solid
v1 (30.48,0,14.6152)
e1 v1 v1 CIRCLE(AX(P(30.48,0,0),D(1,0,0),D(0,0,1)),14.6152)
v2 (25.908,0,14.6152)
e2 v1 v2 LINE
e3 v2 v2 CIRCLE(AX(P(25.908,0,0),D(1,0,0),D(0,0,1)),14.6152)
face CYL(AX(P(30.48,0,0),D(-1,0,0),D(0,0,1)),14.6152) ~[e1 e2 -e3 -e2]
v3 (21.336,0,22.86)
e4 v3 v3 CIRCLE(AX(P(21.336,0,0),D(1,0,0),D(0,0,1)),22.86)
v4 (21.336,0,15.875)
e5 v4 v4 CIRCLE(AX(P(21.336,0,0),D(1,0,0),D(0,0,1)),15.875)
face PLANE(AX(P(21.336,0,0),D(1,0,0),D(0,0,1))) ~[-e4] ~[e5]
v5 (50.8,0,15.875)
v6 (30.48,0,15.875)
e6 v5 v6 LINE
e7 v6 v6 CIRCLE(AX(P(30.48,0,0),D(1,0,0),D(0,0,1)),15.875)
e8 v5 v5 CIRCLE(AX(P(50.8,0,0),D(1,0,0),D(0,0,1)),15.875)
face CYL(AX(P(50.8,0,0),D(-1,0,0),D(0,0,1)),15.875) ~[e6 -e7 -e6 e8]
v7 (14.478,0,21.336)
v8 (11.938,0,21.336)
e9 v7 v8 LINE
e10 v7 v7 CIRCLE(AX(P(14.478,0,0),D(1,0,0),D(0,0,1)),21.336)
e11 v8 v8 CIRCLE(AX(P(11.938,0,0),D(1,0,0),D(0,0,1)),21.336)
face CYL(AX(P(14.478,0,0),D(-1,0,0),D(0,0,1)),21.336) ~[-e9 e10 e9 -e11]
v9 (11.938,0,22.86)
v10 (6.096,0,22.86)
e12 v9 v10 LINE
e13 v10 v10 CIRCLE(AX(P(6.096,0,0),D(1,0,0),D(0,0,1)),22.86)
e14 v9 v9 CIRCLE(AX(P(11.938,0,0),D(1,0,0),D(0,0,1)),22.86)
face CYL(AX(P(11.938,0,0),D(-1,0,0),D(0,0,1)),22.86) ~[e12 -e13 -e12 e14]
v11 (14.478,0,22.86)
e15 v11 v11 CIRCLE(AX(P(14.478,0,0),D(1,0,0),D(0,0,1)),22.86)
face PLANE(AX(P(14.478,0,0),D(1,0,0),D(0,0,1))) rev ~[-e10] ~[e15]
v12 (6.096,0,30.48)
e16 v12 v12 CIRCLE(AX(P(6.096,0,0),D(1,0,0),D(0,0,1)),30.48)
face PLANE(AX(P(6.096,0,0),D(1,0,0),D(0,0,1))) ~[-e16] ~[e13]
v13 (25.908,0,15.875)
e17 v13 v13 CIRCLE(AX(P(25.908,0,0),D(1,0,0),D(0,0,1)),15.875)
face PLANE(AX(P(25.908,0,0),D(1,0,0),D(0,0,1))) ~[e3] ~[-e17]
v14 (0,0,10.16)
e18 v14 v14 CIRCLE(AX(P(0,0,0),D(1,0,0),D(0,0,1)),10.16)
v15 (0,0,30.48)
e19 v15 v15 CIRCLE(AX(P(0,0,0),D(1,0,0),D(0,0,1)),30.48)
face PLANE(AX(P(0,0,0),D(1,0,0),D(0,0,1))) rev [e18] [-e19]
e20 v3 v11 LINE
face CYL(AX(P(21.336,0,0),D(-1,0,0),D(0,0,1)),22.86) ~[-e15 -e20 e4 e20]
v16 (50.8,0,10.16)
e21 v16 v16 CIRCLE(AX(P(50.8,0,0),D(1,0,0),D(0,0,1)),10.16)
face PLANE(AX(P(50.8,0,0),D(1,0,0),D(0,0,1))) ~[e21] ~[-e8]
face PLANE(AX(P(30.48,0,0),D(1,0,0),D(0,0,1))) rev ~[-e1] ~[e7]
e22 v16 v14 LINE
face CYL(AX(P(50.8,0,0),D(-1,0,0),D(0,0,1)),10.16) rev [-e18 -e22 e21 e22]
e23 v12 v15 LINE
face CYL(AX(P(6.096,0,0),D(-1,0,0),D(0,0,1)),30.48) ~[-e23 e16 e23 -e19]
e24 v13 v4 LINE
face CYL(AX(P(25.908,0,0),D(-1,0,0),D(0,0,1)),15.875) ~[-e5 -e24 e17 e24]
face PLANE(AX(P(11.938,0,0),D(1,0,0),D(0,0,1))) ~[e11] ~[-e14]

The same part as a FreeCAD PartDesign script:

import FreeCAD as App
import Part
import Sketcher
Q = App.Units.Quantity

doc = App.newDocument("Part")
body = doc.addObject("PartDesign::Body", "Body")

# Sketch on XZ plane
sketch1 = body.newObject("Sketcher::SketchObject", "Sketch")
sketch1.AttachmentSupport = (doc.getObject("XZ_Plane"), [""])
sketch1.MapMode = "FlatFace"
sketch1.addGeometry([
    Part.LineSegment(App.Vector(50.8, 10.16, 0), App.Vector(0, 10.16, 0)),  # 0
    Part.LineSegment(App.Vector(0, 10.16, 0), App.Vector(0, 30.48, 0)),  # 1
    Part.LineSegment(App.Vector(0, 30.48, 0), App.Vector(6.096, 30.48, 0)),  # 2
    Part.LineSegment(App.Vector(6.096, 30.48, 0), App.Vector(6.096, 22.86, 0)),  # 3
    Part.LineSegment(App.Vector(6.096, 22.86, 0), App.Vector(11.938, 22.86, 0)),  # 4
    Part.LineSegment(App.Vector(11.938, 22.86, 0), App.Vector(11.938, 21.336, 0)),  # 5
    Part.LineSegment(App.Vector(11.938, 21.336, 0), App.Vector(14.478, 21.336, 0)),  # 6
    Part.LineSegment(App.Vector(14.478, 21.336, 0), App.Vector(14.478, 22.86, 0)),  # 7
    Part.LineSegment(App.Vector(14.478, 22.86, 0), App.Vector(21.336, 22.86, 0)),  # 8
    Part.LineSegment(App.Vector(21.336, 22.86, 0), App.Vector(21.336, 15.875, 0)),  # 9
    Part.LineSegment(App.Vector(21.336, 15.875, 0), App.Vector(25.908, 15.875, 0)),  # 10
    Part.LineSegment(App.Vector(25.908, 15.875, 0), App.Vector(25.908, 14.6152, 0)),  # 11
    Part.LineSegment(App.Vector(25.908, 14.6152, 0), App.Vector(30.48, 14.6152, 0)),  # 12
    Part.LineSegment(App.Vector(30.48, 14.6152, 0), App.Vector(30.48, 15.875, 0)),  # 13
    Part.LineSegment(App.Vector(30.48, 15.875, 0), App.Vector(50.8, 15.875, 0)),  # 14
    Part.LineSegment(App.Vector(50.8, 15.875, 0), App.Vector(50.8, 10.16, 0)),  # 15
], False)
sketch1.addConstraint([
    Sketcher.Constraint("Coincident", 0, 2, 1, 1),
    Sketcher.Constraint("Coincident", 1, 2, 2, 1),
    Sketcher.Constraint("Coincident", 2, 2, 3, 1),
    Sketcher.Constraint("Coincident", 3, 2, 4, 1),
    Sketcher.Constraint("Coincident", 4, 2, 5, 1),
    Sketcher.Constraint("Coincident", 5, 2, 6, 1),
    Sketcher.Constraint("Coincident", 6, 2, 7, 1),
    Sketcher.Constraint("Coincident", 7, 2, 8, 1),
    Sketcher.Constraint("Coincident", 8, 2, 9, 1),
    Sketcher.Constraint("Coincident", 9, 2, 10, 1),
    Sketcher.Constraint("Coincident", 10, 2, 11, 1),
    Sketcher.Constraint("Coincident", 11, 2, 12, 1),
    Sketcher.Constraint("Coincident", 12, 2, 13, 1),
    Sketcher.Constraint("Coincident", 13, 2, 14, 1),
    Sketcher.Constraint("Coincident", 14, 2, 15, 1),
    Sketcher.Constraint("Coincident", 15, 2, 0, 1),
    Sketcher.Constraint("Horizontal", 0),
    Sketcher.Constraint("Vertical", 1),
    Sketcher.Constraint("Horizontal", 2),
    Sketcher.Constraint("Vertical", 3),
    Sketcher.Constraint("Horizontal", 4),
    Sketcher.Constraint("Vertical", 5),
    Sketcher.Constraint("Horizontal", 6),
    Sketcher.Constraint("Vertical", 7),
    Sketcher.Constraint("Horizontal", 8),
    Sketcher.Constraint("Vertical", 9),
    Sketcher.Constraint("Horizontal", 10),
    Sketcher.Constraint("Vertical", 11),
    Sketcher.Constraint("Horizontal", 12),
    Sketcher.Constraint("Vertical", 13),
    Sketcher.Constraint("Horizontal", 14),
    Sketcher.Constraint("Vertical", 15),
    Sketcher.Constraint("PointOnObject", 0, 2, -2),
    Sketcher.Constraint("Horizontal", 4, 2, 7, 2),
    Sketcher.Constraint("Horizontal", 10, 2, 13, 2),
    Sketcher.Constraint("Equal", 10, 12),
    Sketcher.Constraint("Equal", 14, 1),
    Sketcher.Constraint("DistanceX", 0, 2, 0, 1, Q("2 in")),
    Sketcher.Constraint("DistanceX", 6, 1, 6, 2, Q("0.1 in")),
    Sketcher.Constraint("DistanceX", 14, 1, 14, 2, Q("0.8 in")),
    Sketcher.Constraint("DistanceY", 5, 2, 5, 1, Q("0.06 in")),
    Sketcher.Constraint("DistanceY", -1, 1, 0, 2, Q("0.4 in")),
    Sketcher.Constraint("DistanceY", -1, 1, 3, 2, Q("0.9 in")),
    Sketcher.Constraint("DistanceX", 9, 2, 14, 2, Q("1.16 in")),
    Sketcher.Constraint("DistanceY", -1, 1, 9, 2, Q("0.625 in")),
    Sketcher.Constraint("DistanceX", 2, 1, 2, 2, Q("0.24 in")),
    Sketcher.Constraint("DistanceX", 4, 1, 4, 2, Q("0.23 in")),
    Sketcher.Constraint("DistanceY", -1, 1, 11, 2, Q("0.5754 in")),
])
revolution = body.newObject("PartDesign::Revolution", "Revolution")
revolution.Profile = sketch1
revolution.ReferenceAxis = (sketch1, ["H_Axis"])
revolution.Angle = 360

doc.recompute()
